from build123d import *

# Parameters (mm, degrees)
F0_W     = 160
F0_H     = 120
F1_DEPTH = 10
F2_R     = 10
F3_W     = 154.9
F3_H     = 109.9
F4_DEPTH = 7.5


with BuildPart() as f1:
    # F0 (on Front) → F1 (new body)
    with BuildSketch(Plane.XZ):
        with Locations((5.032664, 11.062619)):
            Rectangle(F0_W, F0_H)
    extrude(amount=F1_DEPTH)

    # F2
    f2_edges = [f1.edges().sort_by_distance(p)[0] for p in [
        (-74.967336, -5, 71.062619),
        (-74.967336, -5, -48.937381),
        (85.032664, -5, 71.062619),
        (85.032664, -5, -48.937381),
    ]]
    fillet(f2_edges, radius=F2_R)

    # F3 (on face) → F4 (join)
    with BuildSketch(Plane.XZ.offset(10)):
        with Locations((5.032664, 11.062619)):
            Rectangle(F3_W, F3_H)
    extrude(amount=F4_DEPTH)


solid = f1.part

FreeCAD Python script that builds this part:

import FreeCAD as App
import Part
import Sketcher
from FreeCAD import Vector


def edges_at(feature, points):
    """Names of the edges that pass closest to the given points."""
    edges = feature.Shape.Edges
    near = lambda p: min(range(len(edges)), key=lambda i: edges[i].distToShape(Part.Vertex(*p))[0])
    return sorted({f"Edge{near(p) + 1}" for p in points})

doc = App.newDocument("Part")
body = doc.addObject("PartDesign::Body", "Body")

sketch1 = body.newObject("Sketcher::SketchObject", "Sketch")
sketch1.AttachmentSupport = (doc.getObject("XZ_Plane"), [""])
sketch1.MapMode = "FlatFace"
sketch1.addGeometry([
    Part.LineSegment(Vector(-75, 71, 0), Vector(-75, -49, 0)),
    Part.LineSegment(Vector(-75, -49, 0), Vector(85, -49, 0)),
    Part.LineSegment(Vector(85, -49, 0), Vector(85, 71, 0)),
    Part.LineSegment(Vector(85, 71, 0), Vector(-75, 71, 0)),
], False)
sketch1.addConstraint([
    Sketcher.Constraint("Coincident", 0, 2, 1, 1),
    Sketcher.Constraint("Coincident", 1, 2, 2, 1),
    Sketcher.Constraint("Coincident", 2, 2, 3, 1),
    Sketcher.Constraint("Coincident", 3, 2, 0, 1),
    Sketcher.Constraint("Vertical", 0),
    Sketcher.Constraint("Horizontal", 1),
    Sketcher.Constraint("Vertical", 2),
    Sketcher.Constraint("Horizontal", 3),
    Sketcher.Constraint("DistanceX", 1, 1, 1, 2, 160.0),
    Sketcher.Constraint("DistanceY", 0, 2, 0, 1, 120.0),
    Sketcher.Constraint("DistanceY", 0, 2, -1, 1, 48.937381),
    Sketcher.Constraint("DistanceX", 0, 2, -1, 1, 74.967336),
])
pad1 = body.newObject("PartDesign::Pad", "Pad")
pad1.Profile = sketch1
pad1.Length = 10
doc.recompute()

fillet = body.newObject("PartDesign::Fillet", "Fillet")
fillet.Base = (pad1, edges_at(pad1, [
    (-74.967, -5, 71.063),
    (-74.967, -5, -48.937),
    (85.033, -5, 71.063),
    (85.033, -5, -48.937),
]))
fillet.Radius = 10

sketch2 = body.newObject("Sketcher::SketchObject", "Sketch001")
sketch2.AttachmentSupport = (doc.getObject("XZ_Plane"), [""])
sketch2.MapMode = "FlatFace"
sketch2.AttachmentOffset = App.Placement(Vector(0, 0, 10), App.Rotation())
sketch2.addGeometry([
    Part.LineSegment(Vector(-72, 66, 0), Vector(-72, -44, 0)),
    Part.LineSegment(Vector(-72, -44, 0), Vector(82, -44, 0)),
    Part.LineSegment(Vector(82, -44, 0), Vector(82, 66, 0)),
    Part.LineSegment(Vector(82, 66, 0), Vector(-72, 66, 0)),
], False)
sketch2.addConstraint([
    Sketcher.Constraint("Coincident", 0, 2, 1, 1),
    Sketcher.Constraint("Coincident", 1, 2, 2, 1),
    Sketcher.Constraint("Coincident", 2, 2, 3, 1),
    Sketcher.Constraint("Coincident", 3, 2, 0, 1),
    Sketcher.Constraint("Vertical", 0),
    Sketcher.Constraint("Horizontal", 1),
    Sketcher.Constraint("Vertical", 2),
    Sketcher.Constraint("Horizontal", 3),
    Sketcher.Constraint("DistanceX", 1, 1, 1, 2, 154.9),
    Sketcher.Constraint("DistanceY", 0, 2, 0, 1, 109.9),
    Sketcher.Constraint("DistanceY", 0, 2, -1, 1, 43.887381),
    Sketcher.Constraint("DistanceX", 0, 2, -1, 1, 72.417336),
])
pad2 = body.newObject("PartDesign::Pad", "Pad001")
pad2.Profile = sketch2
pad2.Length = 7.5

doc.recompute()
